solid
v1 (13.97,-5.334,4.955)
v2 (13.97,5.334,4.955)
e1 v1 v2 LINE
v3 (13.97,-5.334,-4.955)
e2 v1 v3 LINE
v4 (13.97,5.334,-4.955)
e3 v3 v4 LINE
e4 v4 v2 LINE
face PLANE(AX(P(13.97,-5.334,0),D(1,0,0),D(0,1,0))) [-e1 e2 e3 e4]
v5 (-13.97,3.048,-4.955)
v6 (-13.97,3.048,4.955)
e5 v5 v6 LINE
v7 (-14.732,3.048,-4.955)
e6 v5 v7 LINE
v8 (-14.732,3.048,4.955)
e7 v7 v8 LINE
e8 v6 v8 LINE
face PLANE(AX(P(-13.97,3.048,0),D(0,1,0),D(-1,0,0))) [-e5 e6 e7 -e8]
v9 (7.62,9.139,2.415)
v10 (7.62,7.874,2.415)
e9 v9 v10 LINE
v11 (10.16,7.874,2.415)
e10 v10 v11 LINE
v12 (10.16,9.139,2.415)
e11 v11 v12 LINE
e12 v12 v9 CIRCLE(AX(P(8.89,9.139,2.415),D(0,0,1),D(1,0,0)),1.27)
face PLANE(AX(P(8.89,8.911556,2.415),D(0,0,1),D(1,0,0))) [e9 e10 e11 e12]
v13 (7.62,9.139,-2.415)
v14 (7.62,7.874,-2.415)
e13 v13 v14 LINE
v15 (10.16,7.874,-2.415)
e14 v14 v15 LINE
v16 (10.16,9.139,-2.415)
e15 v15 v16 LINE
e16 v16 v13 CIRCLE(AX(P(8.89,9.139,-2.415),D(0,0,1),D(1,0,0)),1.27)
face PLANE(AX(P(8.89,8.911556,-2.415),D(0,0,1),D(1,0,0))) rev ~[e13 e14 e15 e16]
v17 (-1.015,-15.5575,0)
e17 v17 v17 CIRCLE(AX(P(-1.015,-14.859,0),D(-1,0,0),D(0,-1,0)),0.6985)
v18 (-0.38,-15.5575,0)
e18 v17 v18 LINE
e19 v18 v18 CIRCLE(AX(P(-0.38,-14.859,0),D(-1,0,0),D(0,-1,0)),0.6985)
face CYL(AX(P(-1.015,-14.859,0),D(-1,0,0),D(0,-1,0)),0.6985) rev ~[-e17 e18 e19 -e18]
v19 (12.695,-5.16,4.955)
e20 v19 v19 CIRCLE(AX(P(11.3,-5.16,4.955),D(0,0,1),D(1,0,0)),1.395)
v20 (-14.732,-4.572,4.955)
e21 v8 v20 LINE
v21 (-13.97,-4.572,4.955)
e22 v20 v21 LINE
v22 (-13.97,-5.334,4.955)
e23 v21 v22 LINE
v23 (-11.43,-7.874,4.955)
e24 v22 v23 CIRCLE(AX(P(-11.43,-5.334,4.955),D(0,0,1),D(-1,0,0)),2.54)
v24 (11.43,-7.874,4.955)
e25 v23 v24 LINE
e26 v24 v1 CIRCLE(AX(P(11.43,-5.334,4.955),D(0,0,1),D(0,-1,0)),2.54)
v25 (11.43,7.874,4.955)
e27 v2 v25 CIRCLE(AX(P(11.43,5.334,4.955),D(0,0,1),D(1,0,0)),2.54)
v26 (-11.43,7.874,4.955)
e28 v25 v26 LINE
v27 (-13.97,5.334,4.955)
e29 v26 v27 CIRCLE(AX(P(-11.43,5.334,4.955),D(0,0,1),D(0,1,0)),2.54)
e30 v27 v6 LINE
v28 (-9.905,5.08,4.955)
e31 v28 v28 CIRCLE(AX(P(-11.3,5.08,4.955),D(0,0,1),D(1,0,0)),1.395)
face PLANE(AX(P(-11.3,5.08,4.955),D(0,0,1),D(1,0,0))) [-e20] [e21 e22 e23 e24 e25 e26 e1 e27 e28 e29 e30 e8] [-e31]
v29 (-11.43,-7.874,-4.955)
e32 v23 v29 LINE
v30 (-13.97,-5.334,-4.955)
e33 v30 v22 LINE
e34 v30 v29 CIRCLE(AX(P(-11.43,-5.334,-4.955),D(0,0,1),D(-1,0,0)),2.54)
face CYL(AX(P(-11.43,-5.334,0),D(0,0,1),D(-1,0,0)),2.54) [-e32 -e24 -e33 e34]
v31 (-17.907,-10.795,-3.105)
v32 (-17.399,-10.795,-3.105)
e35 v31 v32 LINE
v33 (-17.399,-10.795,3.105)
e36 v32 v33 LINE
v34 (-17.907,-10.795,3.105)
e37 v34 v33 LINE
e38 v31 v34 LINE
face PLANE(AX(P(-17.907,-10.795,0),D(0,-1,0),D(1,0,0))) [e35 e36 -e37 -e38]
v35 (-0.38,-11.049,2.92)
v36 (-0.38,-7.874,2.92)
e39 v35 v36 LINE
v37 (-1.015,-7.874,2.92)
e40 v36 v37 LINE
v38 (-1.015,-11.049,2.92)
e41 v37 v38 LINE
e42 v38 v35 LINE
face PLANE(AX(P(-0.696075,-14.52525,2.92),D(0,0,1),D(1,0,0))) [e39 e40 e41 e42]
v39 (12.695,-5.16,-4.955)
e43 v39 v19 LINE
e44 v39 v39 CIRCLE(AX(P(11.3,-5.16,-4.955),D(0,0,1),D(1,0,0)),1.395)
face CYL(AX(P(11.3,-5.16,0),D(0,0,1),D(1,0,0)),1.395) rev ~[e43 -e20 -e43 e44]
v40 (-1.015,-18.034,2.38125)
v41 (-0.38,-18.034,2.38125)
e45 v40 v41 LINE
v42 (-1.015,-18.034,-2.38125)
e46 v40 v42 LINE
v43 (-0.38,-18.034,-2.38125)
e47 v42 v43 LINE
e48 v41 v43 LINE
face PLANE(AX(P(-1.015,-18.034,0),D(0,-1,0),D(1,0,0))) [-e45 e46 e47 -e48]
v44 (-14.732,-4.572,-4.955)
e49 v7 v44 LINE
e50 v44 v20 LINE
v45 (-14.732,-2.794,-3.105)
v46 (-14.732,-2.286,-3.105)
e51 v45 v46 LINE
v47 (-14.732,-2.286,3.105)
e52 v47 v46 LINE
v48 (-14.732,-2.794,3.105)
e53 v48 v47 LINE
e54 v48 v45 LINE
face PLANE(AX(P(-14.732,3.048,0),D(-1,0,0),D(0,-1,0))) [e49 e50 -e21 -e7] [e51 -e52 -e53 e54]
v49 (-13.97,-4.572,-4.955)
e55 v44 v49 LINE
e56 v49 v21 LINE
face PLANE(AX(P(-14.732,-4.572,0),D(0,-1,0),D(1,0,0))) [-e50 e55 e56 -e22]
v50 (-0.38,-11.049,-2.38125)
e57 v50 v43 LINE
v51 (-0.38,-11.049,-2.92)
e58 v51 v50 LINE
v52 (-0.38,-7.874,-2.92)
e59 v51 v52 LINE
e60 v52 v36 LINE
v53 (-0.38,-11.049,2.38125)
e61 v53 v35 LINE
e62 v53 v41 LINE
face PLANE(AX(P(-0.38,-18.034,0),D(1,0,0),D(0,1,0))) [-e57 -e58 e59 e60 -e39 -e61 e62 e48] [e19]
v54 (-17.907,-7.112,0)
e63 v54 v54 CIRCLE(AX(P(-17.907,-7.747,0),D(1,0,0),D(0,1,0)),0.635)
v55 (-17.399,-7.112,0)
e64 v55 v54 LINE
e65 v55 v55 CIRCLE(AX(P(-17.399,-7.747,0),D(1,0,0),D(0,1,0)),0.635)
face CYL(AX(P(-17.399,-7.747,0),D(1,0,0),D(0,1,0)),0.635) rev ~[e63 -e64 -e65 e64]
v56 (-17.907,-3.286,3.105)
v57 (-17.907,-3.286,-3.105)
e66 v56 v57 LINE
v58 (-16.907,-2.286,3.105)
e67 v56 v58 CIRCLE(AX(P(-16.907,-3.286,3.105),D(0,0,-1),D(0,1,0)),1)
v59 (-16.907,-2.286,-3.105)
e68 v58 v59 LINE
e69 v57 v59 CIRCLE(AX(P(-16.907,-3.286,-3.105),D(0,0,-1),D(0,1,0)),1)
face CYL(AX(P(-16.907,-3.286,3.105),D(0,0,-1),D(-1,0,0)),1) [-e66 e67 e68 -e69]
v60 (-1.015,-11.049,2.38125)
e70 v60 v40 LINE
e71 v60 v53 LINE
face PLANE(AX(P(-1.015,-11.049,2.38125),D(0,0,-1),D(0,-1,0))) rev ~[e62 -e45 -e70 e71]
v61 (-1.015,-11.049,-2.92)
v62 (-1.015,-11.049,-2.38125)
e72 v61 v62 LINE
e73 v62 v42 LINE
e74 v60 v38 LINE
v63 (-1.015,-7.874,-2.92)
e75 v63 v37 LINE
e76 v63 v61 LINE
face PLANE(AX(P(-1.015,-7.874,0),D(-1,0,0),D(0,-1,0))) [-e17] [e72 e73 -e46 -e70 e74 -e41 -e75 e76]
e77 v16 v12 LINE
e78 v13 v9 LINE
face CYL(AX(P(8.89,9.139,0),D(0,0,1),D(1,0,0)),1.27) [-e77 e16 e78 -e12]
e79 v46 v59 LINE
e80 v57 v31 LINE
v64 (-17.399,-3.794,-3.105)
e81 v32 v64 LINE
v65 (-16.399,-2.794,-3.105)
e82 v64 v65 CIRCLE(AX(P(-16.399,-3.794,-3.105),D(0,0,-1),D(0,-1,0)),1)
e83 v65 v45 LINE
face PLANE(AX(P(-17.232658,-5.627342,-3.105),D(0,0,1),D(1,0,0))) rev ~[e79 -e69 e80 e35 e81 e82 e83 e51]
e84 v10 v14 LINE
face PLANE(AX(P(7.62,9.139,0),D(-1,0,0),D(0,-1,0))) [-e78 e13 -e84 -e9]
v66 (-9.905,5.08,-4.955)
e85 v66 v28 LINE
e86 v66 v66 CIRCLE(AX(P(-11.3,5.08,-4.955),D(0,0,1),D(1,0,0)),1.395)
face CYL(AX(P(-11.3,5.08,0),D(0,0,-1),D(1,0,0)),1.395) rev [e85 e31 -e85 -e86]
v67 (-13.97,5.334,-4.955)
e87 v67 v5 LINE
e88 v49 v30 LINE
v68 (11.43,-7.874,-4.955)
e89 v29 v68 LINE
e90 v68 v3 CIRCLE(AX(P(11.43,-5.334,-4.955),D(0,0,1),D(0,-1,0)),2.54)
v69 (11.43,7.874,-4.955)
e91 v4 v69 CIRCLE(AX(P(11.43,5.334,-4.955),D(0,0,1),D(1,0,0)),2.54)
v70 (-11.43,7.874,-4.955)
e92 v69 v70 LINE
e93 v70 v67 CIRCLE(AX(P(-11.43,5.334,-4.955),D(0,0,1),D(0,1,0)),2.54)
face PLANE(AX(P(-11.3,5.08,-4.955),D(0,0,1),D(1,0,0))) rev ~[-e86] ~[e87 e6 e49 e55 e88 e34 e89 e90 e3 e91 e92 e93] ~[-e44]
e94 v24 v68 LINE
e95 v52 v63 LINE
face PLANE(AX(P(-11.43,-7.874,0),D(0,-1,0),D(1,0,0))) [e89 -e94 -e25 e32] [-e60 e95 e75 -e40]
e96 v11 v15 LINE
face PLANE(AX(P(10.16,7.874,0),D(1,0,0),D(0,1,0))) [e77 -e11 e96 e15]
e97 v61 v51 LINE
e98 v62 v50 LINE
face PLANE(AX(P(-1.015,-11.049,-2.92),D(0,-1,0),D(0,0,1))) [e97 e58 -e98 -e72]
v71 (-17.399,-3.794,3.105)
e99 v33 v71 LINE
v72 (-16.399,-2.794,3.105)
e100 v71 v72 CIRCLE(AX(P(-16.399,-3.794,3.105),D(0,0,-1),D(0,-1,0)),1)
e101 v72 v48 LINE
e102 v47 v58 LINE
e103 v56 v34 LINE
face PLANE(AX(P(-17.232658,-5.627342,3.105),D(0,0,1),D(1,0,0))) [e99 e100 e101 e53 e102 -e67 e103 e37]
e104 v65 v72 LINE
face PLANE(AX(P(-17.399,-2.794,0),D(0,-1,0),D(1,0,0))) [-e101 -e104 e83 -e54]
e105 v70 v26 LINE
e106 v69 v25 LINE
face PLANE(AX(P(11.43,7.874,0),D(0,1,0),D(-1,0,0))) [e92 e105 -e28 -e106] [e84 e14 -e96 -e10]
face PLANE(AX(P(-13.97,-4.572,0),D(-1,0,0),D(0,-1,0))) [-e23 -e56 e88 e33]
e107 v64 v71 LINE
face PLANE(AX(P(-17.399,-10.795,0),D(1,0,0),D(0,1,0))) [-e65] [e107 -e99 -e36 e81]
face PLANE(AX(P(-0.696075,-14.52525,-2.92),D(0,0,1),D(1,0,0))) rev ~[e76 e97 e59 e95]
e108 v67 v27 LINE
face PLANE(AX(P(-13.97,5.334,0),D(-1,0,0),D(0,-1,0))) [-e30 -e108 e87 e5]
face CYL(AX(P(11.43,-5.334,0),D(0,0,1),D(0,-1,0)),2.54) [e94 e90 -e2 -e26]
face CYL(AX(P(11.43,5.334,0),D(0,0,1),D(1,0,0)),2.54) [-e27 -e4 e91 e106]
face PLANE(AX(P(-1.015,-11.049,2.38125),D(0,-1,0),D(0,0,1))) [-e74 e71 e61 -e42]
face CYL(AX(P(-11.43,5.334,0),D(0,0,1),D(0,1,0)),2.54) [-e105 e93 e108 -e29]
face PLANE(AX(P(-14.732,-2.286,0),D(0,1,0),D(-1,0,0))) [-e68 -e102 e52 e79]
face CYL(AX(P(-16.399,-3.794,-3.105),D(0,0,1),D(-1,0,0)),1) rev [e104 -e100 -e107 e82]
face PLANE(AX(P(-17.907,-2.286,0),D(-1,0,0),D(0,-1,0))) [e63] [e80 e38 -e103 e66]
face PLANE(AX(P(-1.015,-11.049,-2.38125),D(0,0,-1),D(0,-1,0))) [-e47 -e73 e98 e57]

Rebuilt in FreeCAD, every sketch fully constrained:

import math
import FreeCAD as App
import Part
import Sketcher

V = App.Vector
Q = App.Units.Quantity


def edges_at(feature, points):
    """Names of the edges that pass closest to the given points."""
    edges = feature.Shape.Edges
    near = lambda p: min(range(len(edges)), key=lambda i: edges[i].distToShape(Part.Vertex(*p))[0])
    return sorted({f"Edge{near(p) + 1}" for p in points})


def add_polygon(sketch, points):
    """Adds a closed chain of lines whose ends are joined by coincident constraints."""
    first, n = sketch.GeometryCount, len(points)
    for a, b in zip(points, points[1:] + points[:1]):
        sketch.addGeometry(Part.LineSegment(App.Vector(*a, 0), App.Vector(*b, 0)), False)
    for i in range(n):
        sketch.addConstraint(Sketcher.Constraint("Coincident", first + i, 2, first + (i + 1) % n, 1))

doc = App.newDocument("Part")
body = doc.addObject("PartDesign::Body", "Body")

sketch1 = doc.addObject("Sketcher::SketchObject", "Sketch")
body.addObject(sketch1)
sketch1.AttachmentSupport = (doc.XY_Plane, [""])
sketch1.MapMode = "FlatFace"
sketch1.addGeometry([
    Part.LineSegment(V(14, -5.3, 0), V(14, 5.3, 0)),
    Part.ArcOfCircle(Part.Circle(V(11.4, 5.3, 0), V(0, 0, 1), 2.5), math.radians(0), math.radians(90)),
    Part.LineSegment(V(11.4, 7.9, 0), V(-11.4, 7.9, 0)),
    Part.ArcOfCircle(Part.Circle(V(-11.4, 5.3, 0), V(0, 0, 1), 2.5), math.radians(90), math.radians(180)),
    Part.LineSegment(V(-14, 5.3, 0), V(-14, 3, 0)),
    Part.LineSegment(V(-14, 3, 0), V(-14.7, 3, 0)),
    Part.LineSegment(V(-14.7, 3, 0), V(-14.7, -4.6, 0)),
    Part.LineSegment(V(-14.7, -4.6, 0), V(-14, -4.6, 0)),
    Part.LineSegment(V(-14, -4.6, 0), V(-14, -5.3, 0)),
    Part.ArcOfCircle(Part.Circle(V(-11.4, -5.3, 0), V(0, 0, 1), 2.5), math.radians(-180), math.radians(-90)),
    Part.LineSegment(V(-11.4, -7.9, 0), V(11.4, -7.9, 0)),
    Part.ArcOfCircle(Part.Circle(V(11.4, -5.3, 0), V(0, 0, 1), 2.5), math.radians(-90), math.radians(0)),
    Part.Circle(V(-11.3, 5.1, 0), V(0, 0, 1), 1.4),
], False)
sketch1.addConstraint([
    Sketcher.Constraint("Tangent", 0, 2, 1, 1),
    Sketcher.Constraint("Tangent", 1, 2, 2, 1),
    Sketcher.Constraint("Tangent", 2, 2, 3, 1),
    Sketcher.Constraint("Tangent", 3, 2, 4, 1),
    Sketcher.Constraint("Coincident", 4, 2, 5, 1),
    Sketcher.Constraint("Coincident", 5, 2, 6, 1),
    Sketcher.Constraint("Coincident", 6, 2, 7, 1),
    Sketcher.Constraint("Coincident", 7, 2, 8, 1),
    Sketcher.Constraint("Tangent", 8, 2, 9, 1),
    Sketcher.Constraint("Tangent", 9, 2, 10, 1),
    Sketcher.Constraint("Tangent", 10, 2, 11, 1),
    Sketcher.Constraint("Tangent", 11, 2, 0, 1),
    Sketcher.Constraint("Vertical", 0),
    Sketcher.Constraint("Horizontal", 2),
    Sketcher.Constraint("Vertical", 4),
    Sketcher.Constraint("Horizontal", 5),
    Sketcher.Constraint("Vertical", 6),
    Sketcher.Constraint("Horizontal", 7),
    Sketcher.Constraint("Vertical", 8),
    Sketcher.Constraint("Horizontal", 10),
    Sketcher.Constraint("Equal", 1, 3),
    Sketcher.Constraint("Equal", 3, 9),
    Sketcher.Constraint("Equal", 9, 11),
    Sketcher.Constraint("Symmetric", 1, 3, 9, 3, -1, 1),
    Sketcher.Constraint("Vertical", 3, 3, 9, 3),
    Sketcher.Constraint("Equal", 7, 8),
    Sketcher.Constraint("Radius", 1, Q("0.1 in")),
    Sketcher.Constraint("DistanceX", 2, 2, 2, 1, Q("0.9 in")),
    Sketcher.Constraint("DistanceY", 6, 2, 6, 1, Q("0.3 in")),
    Sketcher.Constraint("DistanceX", 5, 2, 5, 1, Q("0.03 in")),
    Sketcher.Constraint("DistanceY", 0, 1, 0, 2, Q("0.42 in")),
    Sketcher.Constraint("DistanceY", -1, 1, 12, 3, Q("0.2 in")),
    Sketcher.Constraint("Diameter", 12, Q("2.79 mm")),
    Sketcher.Constraint("DistanceX", 12, 3, -1, 1, Q("11.3 mm")),
])
pad1 = doc.addObject("PartDesign::Pad", "Pad")
body.addObject(pad1)
pad1.Profile = sketch1
pad1.Length = 9.91
pad1.Midplane = True

sketch2 = doc.addObject("Sketcher::SketchObject", "Sketch001")
body.addObject(sketch2)
sketch2.AttachmentSupport = (doc.XY_Plane, [""])
sketch2.MapMode = "FlatFace"
add_polygon(sketch2, [(-17.9, -2.3), (-17.9, -10.8), (-17.4, -10.8), (-17.4, -2.8), (-14.7, -2.8), (-14.7, -2.3)])
sketch2.addConstraint([
    Sketcher.Constraint("Vertical", 0),
    Sketcher.Constraint("Horizontal", 1),
    Sketcher.Constraint("Vertical", 2),
    Sketcher.Constraint("Horizontal", 3),
    Sketcher.Constraint("Vertical", 4),
    Sketcher.Constraint("Horizontal", 5),
    Sketcher.Constraint("Equal", 1, 4),
    Sketcher.Constraint("DistanceX", 1, 1, 1, 2, Q("0.02 in")),
    Sketcher.Constraint("DistanceX", 3, 1, 3, 2, Q("0.105 in")),
    Sketcher.Constraint("DistanceY", 0, 2, 0, 1, Q("0.335 in")),
    Sketcher.Constraint("DistanceY", 2, 2, -1, 1, Q("0.11 in")),
    Sketcher.Constraint("DistanceX", 3, 2, -1, 1, Q("0.58 in")),
])
pad2 = doc.addObject("PartDesign::Pad", "Pad001")
body.addObject(pad2)
pad2.Profile = sketch2
pad2.Length = 6.21
pad2.Midplane = True

sketch3 = doc.addObject("Sketcher::SketchObject", "Sketch002")
body.addObject(sketch3)
sketch3.AttachmentSupport = (doc.XY_Plane, [""])
sketch3.MapMode = "FlatFace"
sketch3.addGeometry([
    Part.LineSegment(V(10.2, 7.9, 0), V(10.2, 9.1, 0)),
    Part.ArcOfCircle(Part.Circle(V(8.9, 9.1, 0), V(0, 0, 1), 1.3), math.radians(0), math.radians(180)),
    Part.LineSegment(V(7.6, 9.1, 0), V(7.6, 7.9, 0)),
    Part.LineSegment(V(7.6, 7.9, 0), V(10.2, 7.9, 0)),
], False)
sketch3.addConstraint([
    Sketcher.Constraint("Tangent", 0, 2, 1, 1),
    Sketcher.Constraint("Tangent", 1, 2, 2, 1),
    Sketcher.Constraint("Coincident", 2, 2, 3, 1),
    Sketcher.Constraint("Coincident", 3, 2, 0, 1),
    Sketcher.Constraint("Vertical", 0),
    Sketcher.Constraint("Vertical", 2),
    Sketcher.Constraint("Horizontal", 3),
    Sketcher.Constraint("Radius", 1, Q("0.05 in")),
    Sketcher.Constraint("DistanceX", -1, 1, 0, 2, Q("0.4 in")),
    Sketcher.Constraint("DistanceY", -1, 1, 2, 2, Q("0.31 in")),
    Sketcher.Constraint("DistanceY", 0, 1, 0, 2, Q("1.265 mm")),
])
pad3 = doc.addObject("PartDesign::Pad", "Pad002")
body.addObject(pad3)
pad3.Profile = sketch3
pad3.Length = 4.83
pad3.Midplane = True

sketch4 = doc.addObject("Sketcher::SketchObject", "Sketch003")
body.addObject(sketch4)
sketch4.AttachmentSupport = (doc.XY_Plane, [""])
sketch4.MapMode = "FlatFace"
add_polygon(sketch4, [(-0.4, -18), (-0.4, -7.9), (-1, -7.9), (-1, -18)])
sketch4.addConstraint([
    Sketcher.Constraint("Vertical", 0),
    Sketcher.Constraint("Horizontal", 1),
    Sketcher.Constraint("Vertical", 2),
    Sketcher.Constraint("Horizontal", 3),
    Sketcher.Constraint("DistanceY", 0, 1, 0, 2, Q("0.4 in")),
    Sketcher.Constraint("DistanceX", 1, 2, 1, 1, Q("0.025 in")),
    Sketcher.Constraint("DistanceY", 0, 2, -1, 1, Q("0.31 in")),
    Sketcher.Constraint("DistanceX", 0, 2, -1, 1, Q("0.38 mm")),
])
pad4 = doc.addObject("PartDesign::Pad", "Pad003")
body.addObject(pad4)
pad4.Profile = sketch4
pad4.Length = 5.84
pad4.Midplane = True

sketch5 = doc.addObject("Sketcher::SketchObject", "Sketch004")
body.addObject(sketch5)
sketch5.AttachmentSupport = (doc.YZ_Plane, [""])
sketch5.MapMode = "FlatFace"
sketch5.AttachmentOffset = App.Placement(V(0, 0, -1.015), App.Rotation())
add_polygon(sketch5, [(-11, -2.4), (-11, -2.9), (-18, -2.9), (-18, -2.4)])
sketch5.addConstraint([
    Sketcher.Constraint("Vertical", 0),
    Sketcher.Constraint("Horizontal", 1),
    Sketcher.Constraint("Vertical", 2),
    Sketcher.Constraint("Horizontal", 3),
    Sketcher.Constraint("DistanceX", 1, 2, 1, 1, Q("0.275 in")),
    Sketcher.Constraint("DistanceX", 1, 2, -1, 1, Q("0.71 in")),
    Sketcher.Constraint("DistanceY", 2, 2, -1, 1, Q("0.09375 in")),
    Sketcher.Constraint("DistanceY", 0, 2, 0, 1, Q("0.53875 mm")),
])
pocket1 = doc.addObject("PartDesign::Pocket", "Pocket")
body.addObject(pocket1)
pocket1.Profile = sketch5
pocket1.Type = "UpToFirst"
pocket1.Reversed = True

sketch6 = doc.addObject("Sketcher::SketchObject", "Sketch005")
body.addObject(sketch6)
sketch6.AttachmentSupport = (doc.YZ_Plane, [""])
sketch6.MapMode = "FlatFace"
sketch6.AttachmentOffset = App.Placement(V(0, 0, -1.015), App.Rotation())
add_polygon(sketch6, [(-11, 2.9), (-11, 2.4), (-18, 2.4), (-18, 2.9)])
sketch6.addConstraint([
    Sketcher.Constraint("Vertical", 0),
    Sketcher.Constraint("Horizontal", 1),
    Sketcher.Constraint("Vertical", 2),
    Sketcher.Constraint("Horizontal", 3),
    Sketcher.Constraint("DistanceX", 1, 2, 1, 1, Q("0.275 in")),
    Sketcher.Constraint("DistanceX", 1, 2, -1, 1, Q("0.71 in")),
    Sketcher.Constraint("DistanceY", -1, 1, 0, 2, Q("0.09375 in")),
    Sketcher.Constraint("DistanceY", 0, 2, 0, 1, Q("0.53875 mm")),
])
pocket2 = doc.addObject("PartDesign::Pocket", "Pocket001")
body.addObject(pocket2)
pocket2.Profile = sketch6
pocket2.Type = "UpToFirst"
pocket2.Reversed = True

sketch7 = doc.addObject("Sketcher::SketchObject", "Sketch006")
body.addObject(sketch7)
sketch7.AttachmentSupport = (doc.YZ_Plane, [""])
sketch7.MapMode = "FlatFace"
sketch7.AttachmentOffset = App.Placement(V(0, 0, -1.015), App.Rotation())
sketch7.addGeometry(Part.Circle(V(-14.9, 0, 0), V(0, 0, 1), 0.7), False)
sketch7.addConstraint([
    Sketcher.Constraint("PointOnObject", 0, 3, -1),
    Sketcher.Constraint("Diameter", 0, Q("0.055 in")),
    Sketcher.Constraint("DistanceX", 0, 3, -1, 1, Q("0.585 in")),
])
pocket3 = doc.addObject("PartDesign::Pocket", "Pocket002")
body.addObject(pocket3)
pocket3.Profile = sketch7
pocket3.Type = "UpToFirst"
pocket3.Reversed = True

sketch8 = doc.addObject("Sketcher::SketchObject", "Sketch007")
body.addObject(sketch8)
sketch8.AttachmentSupport = (doc.YZ_Plane, [""])
sketch8.MapMode = "FlatFace"
sketch8.AttachmentOffset = App.Placement(V(0, 0, -0.685 * 25.4), App.Rotation())
sketch8.addGeometry(Part.Circle(V(-7.7, 0, 0), V(0, 0, 1), 0.6), False)
sketch8.addConstraint([
    Sketcher.Constraint("PointOnObject", 0, 3, -1),
    Sketcher.Constraint("Diameter", 0, Q("0.05 in")),
    Sketcher.Constraint("DistanceX", 0, 3, -1, 1, Q("0.305 in")),
])
pocket4 = doc.addObject("PartDesign::Pocket", "Pocket003")
body.addObject(pocket4)
pocket4.Profile = sketch8
pocket4.Type = "ThroughAll"

sketch9 = doc.addObject("Sketcher::SketchObject", "Sketch008")
body.addObject(sketch9)
sketch9.AttachmentSupport = (doc.XY_Plane, [""])
sketch9.MapMode = "FlatFace"
sketch9.addGeometry([
    Part.Circle(V(-11.3, 5.1, 0), V(0, 0, 1), 1.4),
    Part.Circle(V(11.3, -5.2, 0), V(0, 0, 1), 1.4),
], False)
sketch9.addConstraint([
    Sketcher.Constraint("Equal", 0, 1),
    Sketcher.Constraint("DistanceY", -1, 1, 0, 3, Q("0.2 in")),
    Sketcher.Constraint("Diameter", 0, Q("2.79 mm")),
    Sketcher.Constraint("DistanceX", 0, 3, -1, 1, Q("11.3 mm")),
    Sketcher.Constraint("DistanceX", -1, 1, 1, 3, Q("11.3 mm")),
    Sketcher.Constraint("DistanceY", 1, 3, -1, 1, Q("5.16 mm")),
])
pocket5 = doc.addObject("PartDesign::Pocket", "Pocket004")
body.addObject(pocket5)
pocket5.Profile = sketch9
pocket5.Length = 15.84
pocket5.Midplane = True
doc.recompute()

fillet = doc.addObject("PartDesign::Fillet", "Fillet")
body.addObject(fillet)
fillet.Base = (pocket5, edges_at(pocket5, [(-17.907, -2.286, 0), (-17.399, -2.794, 0)]))
fillet.Radius = 1

doc.recompute()
